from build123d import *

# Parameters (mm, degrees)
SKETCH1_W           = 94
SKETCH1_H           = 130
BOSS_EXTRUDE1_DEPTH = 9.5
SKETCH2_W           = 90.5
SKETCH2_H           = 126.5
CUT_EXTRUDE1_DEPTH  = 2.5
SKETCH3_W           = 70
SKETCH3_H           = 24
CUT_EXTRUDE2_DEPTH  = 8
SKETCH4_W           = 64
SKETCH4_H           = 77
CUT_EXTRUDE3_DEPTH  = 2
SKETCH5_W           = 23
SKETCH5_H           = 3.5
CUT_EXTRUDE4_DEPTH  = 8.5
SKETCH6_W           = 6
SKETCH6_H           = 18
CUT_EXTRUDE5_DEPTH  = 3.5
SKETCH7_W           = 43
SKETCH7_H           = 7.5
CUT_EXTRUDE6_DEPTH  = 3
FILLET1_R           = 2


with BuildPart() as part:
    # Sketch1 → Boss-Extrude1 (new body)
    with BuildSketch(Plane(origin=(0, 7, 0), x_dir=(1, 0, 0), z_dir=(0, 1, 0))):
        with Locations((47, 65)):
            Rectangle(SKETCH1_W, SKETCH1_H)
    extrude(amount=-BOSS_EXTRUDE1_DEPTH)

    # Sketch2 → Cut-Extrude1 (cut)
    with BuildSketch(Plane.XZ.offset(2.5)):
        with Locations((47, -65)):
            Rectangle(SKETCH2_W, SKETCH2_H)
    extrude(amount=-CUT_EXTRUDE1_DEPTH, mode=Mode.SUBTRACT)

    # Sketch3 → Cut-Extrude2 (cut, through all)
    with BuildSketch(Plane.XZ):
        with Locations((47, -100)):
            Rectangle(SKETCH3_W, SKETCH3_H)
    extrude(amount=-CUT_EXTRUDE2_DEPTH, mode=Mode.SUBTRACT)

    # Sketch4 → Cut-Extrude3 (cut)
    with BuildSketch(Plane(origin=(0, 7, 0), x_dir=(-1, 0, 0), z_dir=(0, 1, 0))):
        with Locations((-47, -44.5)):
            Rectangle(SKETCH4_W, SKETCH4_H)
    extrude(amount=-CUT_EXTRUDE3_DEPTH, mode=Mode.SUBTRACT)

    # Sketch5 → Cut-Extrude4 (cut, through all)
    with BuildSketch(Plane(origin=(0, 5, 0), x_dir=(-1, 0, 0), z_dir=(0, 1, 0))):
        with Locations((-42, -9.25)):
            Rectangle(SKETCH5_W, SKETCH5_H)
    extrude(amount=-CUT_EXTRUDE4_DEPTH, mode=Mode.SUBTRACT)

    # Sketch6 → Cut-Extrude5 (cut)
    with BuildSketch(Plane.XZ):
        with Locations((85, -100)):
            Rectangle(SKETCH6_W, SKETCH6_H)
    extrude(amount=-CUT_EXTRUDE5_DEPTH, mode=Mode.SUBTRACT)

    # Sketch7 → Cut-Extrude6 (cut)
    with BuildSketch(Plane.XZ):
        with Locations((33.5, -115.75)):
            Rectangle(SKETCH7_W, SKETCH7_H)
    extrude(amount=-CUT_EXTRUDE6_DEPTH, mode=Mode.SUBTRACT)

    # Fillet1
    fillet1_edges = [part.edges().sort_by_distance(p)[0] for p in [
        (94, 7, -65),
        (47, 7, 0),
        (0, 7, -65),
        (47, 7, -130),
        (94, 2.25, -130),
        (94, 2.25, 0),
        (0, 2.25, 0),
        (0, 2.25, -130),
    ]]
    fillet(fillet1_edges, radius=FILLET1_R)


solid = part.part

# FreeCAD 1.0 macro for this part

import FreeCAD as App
import Part
import Sketcher

V = App.Vector


def edges_at(feature, points):
    """Names of the edges that pass closest to the given points."""
    edges = feature.Shape.Edges
    near = lambda p: min(range(len(edges)), key=lambda i: edges[i].distToShape(Part.Vertex(*p))[0])
    return sorted({f"Edge{near(p) + 1}" for p in points})


def add_polygon(sketch, points):
    """Adds a closed chain of lines whose ends are joined by coincident constraints."""
    first, n = sketch.GeometryCount, len(points)
    for a, b in zip(points, points[1:] + points[:1]):
        sketch.addGeometry(Part.LineSegment(App.Vector(*a, 0), App.Vector(*b, 0)), False)
    for i in range(n):
        sketch.addConstraint(Sketcher.Constraint("Coincident", first + i, 2, first + (i + 1) % n, 1))

doc = App.newDocument("Part")
body = doc.addObject("PartDesign::Body", "Body")

# Sketch on XZ plane
sketch1 = body.newObject("Sketcher::SketchObject", "Sketch")
sketch1.AttachmentSupport = (doc.getObject("XZ_Plane"), [""])
sketch1.MapMode = "FlatFace"
sketch1.AttachmentOffset = App.Placement(V(0, 0, -7), App.Rotation())
add_polygon(sketch1, [(0, -130), (0, 0), (94, 0), (94, -130)])  # lines 0-3
sketch1.addConstraint([
    Sketcher.Constraint("Vertical", 0),
    Sketcher.Constraint("Horizontal", 1),
    Sketcher.Constraint("Vertical", 2),
    Sketcher.Constraint("Horizontal", 3),
    Sketcher.Constraint("Coincident", 0, 2, -1, 1),
    Sketcher.Constraint("DistanceX", 1, 1, 1, 2, 94.0),
    Sketcher.Constraint("DistanceY", 0, 1, 0, 2, 130.0),
])
pad1 = body.newObject("PartDesign::Pad", "Pad")
pad1.Profile = sketch1
pad1.Length = 9.5

# Sketch on XZ plane
sketch2 = body.newObject("Sketcher::SketchObject", "Sketch001")
sketch2.AttachmentSupport = (doc.getObject("XZ_Plane"), [""])
sketch2.MapMode = "FlatFace"
sketch2.AttachmentOffset = App.Placement(V(0, 0, 2.5), App.Rotation())
add_polygon(sketch2, [(1.75, -1.75), (1.75, -128.25), (92.25, -128.25), (92.25, -1.75)])  # lines 0-3
sketch2.addConstraint([
    Sketcher.Constraint("Vertical", 0),
    Sketcher.Constraint("Horizontal", 1),
    Sketcher.Constraint("Vertical", 2),
    Sketcher.Constraint("Horizontal", 3),
    Sketcher.Constraint("DistanceX", 1, 1, 1, 2, 90.5),
    Sketcher.Constraint("DistanceY", 0, 2, 0, 1, 126.5),
    Sketcher.Constraint("DistanceX", -1, 1, 0, 2, 1.75),
    Sketcher.Constraint("DistanceY", 0, 2, -1, 1, 128.25),
])
pocket1 = body.newObject("PartDesign::Pocket", "Pocket")
pocket1.Profile = sketch2
pocket1.Length = 2.5

# Sketch on XZ plane
sketch3 = body.newObject("Sketcher::SketchObject", "Sketch002")
sketch3.AttachmentSupport = (doc.getObject("XZ_Plane"), [""])
sketch3.MapMode = "FlatFace"
add_polygon(sketch3, [(12, -88), (12, -112), (82, -112), (82, -88)])  # lines 0-3
sketch3.addConstraint([
    Sketcher.Constraint("Vertical", 0),
    Sketcher.Constraint("Horizontal", 1),
    Sketcher.Constraint("Vertical", 2),
    Sketcher.Constraint("Horizontal", 3),
    Sketcher.Constraint("DistanceX", 1, 1, 1, 2, 70.0),
    Sketcher.Constraint("DistanceY", 0, 2, 0, 1, 24.0),
    Sketcher.Constraint("DistanceX", -1, 1, 0, 2, 12.0),
    Sketcher.Constraint("DistanceY", 0, 2, -1, 1, 112.0),
])
pocket2 = body.newObject("PartDesign::Pocket", "Pocket001")
pocket2.Profile = sketch3
pocket2.Type = "ThroughAll"

# Sketch on XZ plane
sketch4 = body.newObject("Sketcher::SketchObject", "Sketch003")
sketch4.AttachmentSupport = (doc.getObject("XZ_Plane"), [""])
sketch4.MapMode = "FlatFace"
sketch4.AttachmentOffset = App.Placement(V(0, 0, -7), App.Rotation())
add_polygon(sketch4, [(79, -6), (79, -83), (15, -83), (15, -6)])  # lines 0-3
sketch4.addConstraint([
    Sketcher.Constraint("Vertical", 0),
    Sketcher.Constraint("Horizontal", 1),
    Sketcher.Constraint("Vertical", 2),
    Sketcher.Constraint("Horizontal", 3),
    Sketcher.Constraint("DistanceX", 1, 2, 1, 1, 64.0),
    Sketcher.Constraint("DistanceY", 0, 2, 0, 1, 77.0),
    Sketcher.Constraint("DistanceX", -1, 1, 0, 2, 79.0),
    Sketcher.Constraint("DistanceY", 0, 2, -1, 1, 83.0),
])
pocket3 = body.newObject("PartDesign::Pocket", "Pocket002")
pocket3.Profile = sketch4
pocket3.Length = 2
pocket3.Reversed = True

# Sketch on XZ plane
sketch5 = body.newObject("Sketcher::SketchObject", "Sketch004")
sketch5.AttachmentSupport = (doc.getObject("XZ_Plane"), [""])
sketch5.MapMode = "FlatFace"
sketch5.AttachmentOffset = App.Placement(V(0, 0, -5), App.Rotation())
add_polygon(sketch5, [(53.5, -7.5), (53.5, -11), (30.5, -11), (30.5, -7.5)])  # lines 0-3
sketch5.addConstraint([
    Sketcher.Constraint("Vertical", 0),
    Sketcher.Constraint("Horizontal", 1),
    Sketcher.Constraint("Vertical", 2),
    Sketcher.Constraint("Horizontal", 3),
    Sketcher.Constraint("DistanceX", 1, 2, 1, 1, 23.0),
    Sketcher.Constraint("DistanceY", 0, 2, 0, 1, 3.5),
    Sketcher.Constraint("DistanceY", 0, 2, -1, 1, 11.0),
    Sketcher.Constraint("DistanceX", -1, 1, 0, 2, 53.5),
])
pocket4 = body.newObject("PartDesign::Pocket", "Pocket003")
pocket4.Profile = sketch5
pocket4.Type = "ThroughAll"
pocket4.Reversed = True

# Sketch on XZ plane
sketch6 = body.newObject("Sketcher::SketchObject", "Sketch005")
sketch6.AttachmentSupport = (doc.getObject("XZ_Plane"), [""])
sketch6.MapMode = "FlatFace"
add_polygon(sketch6, [(82, -91), (82, -109), (88, -109), (88, -91)])  # lines 0-3
sketch6.addConstraint([
    Sketcher.Constraint("Vertical", 0),
    Sketcher.Constraint("Horizontal", 1),
    Sketcher.Constraint("Vertical", 2),
    Sketcher.Constraint("Horizontal", 3),
    Sketcher.Constraint("DistanceX", 1, 1, 1, 2, 6.0),
    Sketcher.Constraint("DistanceY", 0, 2, 0, 1, 18.0),
    Sketcher.Constraint("DistanceX", -1, 1, 0, 2, 82.0),
    Sketcher.Constraint("DistanceY", 0, 2, -1, 1, 109.0),
])
pocket5 = body.newObject("PartDesign::Pocket", "Pocket004")
pocket5.Profile = sketch6
pocket5.Length = 3.5

# Sketch on XZ plane
sketch7 = body.newObject("Sketcher::SketchObject", "Sketch006")
sketch7.AttachmentSupport = (doc.getObject("XZ_Plane"), [""])
sketch7.MapMode = "FlatFace"
add_polygon(sketch7, [(12, -112), (12, -119.5), (55, -119.5), (55, -112)])  # lines 0-3
sketch7.addConstraint([
    Sketcher.Constraint("Vertical", 0),
    Sketcher.Constraint("Horizontal", 1),
    Sketcher.Constraint("Vertical", 2),
    Sketcher.Constraint("Horizontal", 3),
    Sketcher.Constraint("DistanceX", 1, 1, 1, 2, 43.0),
    Sketcher.Constraint("DistanceY", 0, 2, 0, 1, 7.5),
    Sketcher.Constraint("DistanceX", -1, 1, 0, 2, 12.0),
    Sketcher.Constraint("DistanceY", 2, 2, -1, 1, 112.0),
])
pocket6 = body.newObject("PartDesign::Pocket", "Pocket005")
pocket6.Profile = sketch7
pocket6.Length = 3
doc.recompute()

fillet = body.newObject("PartDesign::Fillet", "Fillet")
fillet.Base = (pocket6, edges_at(pocket6, [
    (94, 7, -65),
    (47, 7, 0),
    (0, 7, -65),
    (47, 7, -130),
    (94, 2.25, -130),
    (94, 2.25, 0),
    (0, 2.25, 0),
    (0, 2.25, -130),
]))
fillet.Radius = 2

doc.recompute()
